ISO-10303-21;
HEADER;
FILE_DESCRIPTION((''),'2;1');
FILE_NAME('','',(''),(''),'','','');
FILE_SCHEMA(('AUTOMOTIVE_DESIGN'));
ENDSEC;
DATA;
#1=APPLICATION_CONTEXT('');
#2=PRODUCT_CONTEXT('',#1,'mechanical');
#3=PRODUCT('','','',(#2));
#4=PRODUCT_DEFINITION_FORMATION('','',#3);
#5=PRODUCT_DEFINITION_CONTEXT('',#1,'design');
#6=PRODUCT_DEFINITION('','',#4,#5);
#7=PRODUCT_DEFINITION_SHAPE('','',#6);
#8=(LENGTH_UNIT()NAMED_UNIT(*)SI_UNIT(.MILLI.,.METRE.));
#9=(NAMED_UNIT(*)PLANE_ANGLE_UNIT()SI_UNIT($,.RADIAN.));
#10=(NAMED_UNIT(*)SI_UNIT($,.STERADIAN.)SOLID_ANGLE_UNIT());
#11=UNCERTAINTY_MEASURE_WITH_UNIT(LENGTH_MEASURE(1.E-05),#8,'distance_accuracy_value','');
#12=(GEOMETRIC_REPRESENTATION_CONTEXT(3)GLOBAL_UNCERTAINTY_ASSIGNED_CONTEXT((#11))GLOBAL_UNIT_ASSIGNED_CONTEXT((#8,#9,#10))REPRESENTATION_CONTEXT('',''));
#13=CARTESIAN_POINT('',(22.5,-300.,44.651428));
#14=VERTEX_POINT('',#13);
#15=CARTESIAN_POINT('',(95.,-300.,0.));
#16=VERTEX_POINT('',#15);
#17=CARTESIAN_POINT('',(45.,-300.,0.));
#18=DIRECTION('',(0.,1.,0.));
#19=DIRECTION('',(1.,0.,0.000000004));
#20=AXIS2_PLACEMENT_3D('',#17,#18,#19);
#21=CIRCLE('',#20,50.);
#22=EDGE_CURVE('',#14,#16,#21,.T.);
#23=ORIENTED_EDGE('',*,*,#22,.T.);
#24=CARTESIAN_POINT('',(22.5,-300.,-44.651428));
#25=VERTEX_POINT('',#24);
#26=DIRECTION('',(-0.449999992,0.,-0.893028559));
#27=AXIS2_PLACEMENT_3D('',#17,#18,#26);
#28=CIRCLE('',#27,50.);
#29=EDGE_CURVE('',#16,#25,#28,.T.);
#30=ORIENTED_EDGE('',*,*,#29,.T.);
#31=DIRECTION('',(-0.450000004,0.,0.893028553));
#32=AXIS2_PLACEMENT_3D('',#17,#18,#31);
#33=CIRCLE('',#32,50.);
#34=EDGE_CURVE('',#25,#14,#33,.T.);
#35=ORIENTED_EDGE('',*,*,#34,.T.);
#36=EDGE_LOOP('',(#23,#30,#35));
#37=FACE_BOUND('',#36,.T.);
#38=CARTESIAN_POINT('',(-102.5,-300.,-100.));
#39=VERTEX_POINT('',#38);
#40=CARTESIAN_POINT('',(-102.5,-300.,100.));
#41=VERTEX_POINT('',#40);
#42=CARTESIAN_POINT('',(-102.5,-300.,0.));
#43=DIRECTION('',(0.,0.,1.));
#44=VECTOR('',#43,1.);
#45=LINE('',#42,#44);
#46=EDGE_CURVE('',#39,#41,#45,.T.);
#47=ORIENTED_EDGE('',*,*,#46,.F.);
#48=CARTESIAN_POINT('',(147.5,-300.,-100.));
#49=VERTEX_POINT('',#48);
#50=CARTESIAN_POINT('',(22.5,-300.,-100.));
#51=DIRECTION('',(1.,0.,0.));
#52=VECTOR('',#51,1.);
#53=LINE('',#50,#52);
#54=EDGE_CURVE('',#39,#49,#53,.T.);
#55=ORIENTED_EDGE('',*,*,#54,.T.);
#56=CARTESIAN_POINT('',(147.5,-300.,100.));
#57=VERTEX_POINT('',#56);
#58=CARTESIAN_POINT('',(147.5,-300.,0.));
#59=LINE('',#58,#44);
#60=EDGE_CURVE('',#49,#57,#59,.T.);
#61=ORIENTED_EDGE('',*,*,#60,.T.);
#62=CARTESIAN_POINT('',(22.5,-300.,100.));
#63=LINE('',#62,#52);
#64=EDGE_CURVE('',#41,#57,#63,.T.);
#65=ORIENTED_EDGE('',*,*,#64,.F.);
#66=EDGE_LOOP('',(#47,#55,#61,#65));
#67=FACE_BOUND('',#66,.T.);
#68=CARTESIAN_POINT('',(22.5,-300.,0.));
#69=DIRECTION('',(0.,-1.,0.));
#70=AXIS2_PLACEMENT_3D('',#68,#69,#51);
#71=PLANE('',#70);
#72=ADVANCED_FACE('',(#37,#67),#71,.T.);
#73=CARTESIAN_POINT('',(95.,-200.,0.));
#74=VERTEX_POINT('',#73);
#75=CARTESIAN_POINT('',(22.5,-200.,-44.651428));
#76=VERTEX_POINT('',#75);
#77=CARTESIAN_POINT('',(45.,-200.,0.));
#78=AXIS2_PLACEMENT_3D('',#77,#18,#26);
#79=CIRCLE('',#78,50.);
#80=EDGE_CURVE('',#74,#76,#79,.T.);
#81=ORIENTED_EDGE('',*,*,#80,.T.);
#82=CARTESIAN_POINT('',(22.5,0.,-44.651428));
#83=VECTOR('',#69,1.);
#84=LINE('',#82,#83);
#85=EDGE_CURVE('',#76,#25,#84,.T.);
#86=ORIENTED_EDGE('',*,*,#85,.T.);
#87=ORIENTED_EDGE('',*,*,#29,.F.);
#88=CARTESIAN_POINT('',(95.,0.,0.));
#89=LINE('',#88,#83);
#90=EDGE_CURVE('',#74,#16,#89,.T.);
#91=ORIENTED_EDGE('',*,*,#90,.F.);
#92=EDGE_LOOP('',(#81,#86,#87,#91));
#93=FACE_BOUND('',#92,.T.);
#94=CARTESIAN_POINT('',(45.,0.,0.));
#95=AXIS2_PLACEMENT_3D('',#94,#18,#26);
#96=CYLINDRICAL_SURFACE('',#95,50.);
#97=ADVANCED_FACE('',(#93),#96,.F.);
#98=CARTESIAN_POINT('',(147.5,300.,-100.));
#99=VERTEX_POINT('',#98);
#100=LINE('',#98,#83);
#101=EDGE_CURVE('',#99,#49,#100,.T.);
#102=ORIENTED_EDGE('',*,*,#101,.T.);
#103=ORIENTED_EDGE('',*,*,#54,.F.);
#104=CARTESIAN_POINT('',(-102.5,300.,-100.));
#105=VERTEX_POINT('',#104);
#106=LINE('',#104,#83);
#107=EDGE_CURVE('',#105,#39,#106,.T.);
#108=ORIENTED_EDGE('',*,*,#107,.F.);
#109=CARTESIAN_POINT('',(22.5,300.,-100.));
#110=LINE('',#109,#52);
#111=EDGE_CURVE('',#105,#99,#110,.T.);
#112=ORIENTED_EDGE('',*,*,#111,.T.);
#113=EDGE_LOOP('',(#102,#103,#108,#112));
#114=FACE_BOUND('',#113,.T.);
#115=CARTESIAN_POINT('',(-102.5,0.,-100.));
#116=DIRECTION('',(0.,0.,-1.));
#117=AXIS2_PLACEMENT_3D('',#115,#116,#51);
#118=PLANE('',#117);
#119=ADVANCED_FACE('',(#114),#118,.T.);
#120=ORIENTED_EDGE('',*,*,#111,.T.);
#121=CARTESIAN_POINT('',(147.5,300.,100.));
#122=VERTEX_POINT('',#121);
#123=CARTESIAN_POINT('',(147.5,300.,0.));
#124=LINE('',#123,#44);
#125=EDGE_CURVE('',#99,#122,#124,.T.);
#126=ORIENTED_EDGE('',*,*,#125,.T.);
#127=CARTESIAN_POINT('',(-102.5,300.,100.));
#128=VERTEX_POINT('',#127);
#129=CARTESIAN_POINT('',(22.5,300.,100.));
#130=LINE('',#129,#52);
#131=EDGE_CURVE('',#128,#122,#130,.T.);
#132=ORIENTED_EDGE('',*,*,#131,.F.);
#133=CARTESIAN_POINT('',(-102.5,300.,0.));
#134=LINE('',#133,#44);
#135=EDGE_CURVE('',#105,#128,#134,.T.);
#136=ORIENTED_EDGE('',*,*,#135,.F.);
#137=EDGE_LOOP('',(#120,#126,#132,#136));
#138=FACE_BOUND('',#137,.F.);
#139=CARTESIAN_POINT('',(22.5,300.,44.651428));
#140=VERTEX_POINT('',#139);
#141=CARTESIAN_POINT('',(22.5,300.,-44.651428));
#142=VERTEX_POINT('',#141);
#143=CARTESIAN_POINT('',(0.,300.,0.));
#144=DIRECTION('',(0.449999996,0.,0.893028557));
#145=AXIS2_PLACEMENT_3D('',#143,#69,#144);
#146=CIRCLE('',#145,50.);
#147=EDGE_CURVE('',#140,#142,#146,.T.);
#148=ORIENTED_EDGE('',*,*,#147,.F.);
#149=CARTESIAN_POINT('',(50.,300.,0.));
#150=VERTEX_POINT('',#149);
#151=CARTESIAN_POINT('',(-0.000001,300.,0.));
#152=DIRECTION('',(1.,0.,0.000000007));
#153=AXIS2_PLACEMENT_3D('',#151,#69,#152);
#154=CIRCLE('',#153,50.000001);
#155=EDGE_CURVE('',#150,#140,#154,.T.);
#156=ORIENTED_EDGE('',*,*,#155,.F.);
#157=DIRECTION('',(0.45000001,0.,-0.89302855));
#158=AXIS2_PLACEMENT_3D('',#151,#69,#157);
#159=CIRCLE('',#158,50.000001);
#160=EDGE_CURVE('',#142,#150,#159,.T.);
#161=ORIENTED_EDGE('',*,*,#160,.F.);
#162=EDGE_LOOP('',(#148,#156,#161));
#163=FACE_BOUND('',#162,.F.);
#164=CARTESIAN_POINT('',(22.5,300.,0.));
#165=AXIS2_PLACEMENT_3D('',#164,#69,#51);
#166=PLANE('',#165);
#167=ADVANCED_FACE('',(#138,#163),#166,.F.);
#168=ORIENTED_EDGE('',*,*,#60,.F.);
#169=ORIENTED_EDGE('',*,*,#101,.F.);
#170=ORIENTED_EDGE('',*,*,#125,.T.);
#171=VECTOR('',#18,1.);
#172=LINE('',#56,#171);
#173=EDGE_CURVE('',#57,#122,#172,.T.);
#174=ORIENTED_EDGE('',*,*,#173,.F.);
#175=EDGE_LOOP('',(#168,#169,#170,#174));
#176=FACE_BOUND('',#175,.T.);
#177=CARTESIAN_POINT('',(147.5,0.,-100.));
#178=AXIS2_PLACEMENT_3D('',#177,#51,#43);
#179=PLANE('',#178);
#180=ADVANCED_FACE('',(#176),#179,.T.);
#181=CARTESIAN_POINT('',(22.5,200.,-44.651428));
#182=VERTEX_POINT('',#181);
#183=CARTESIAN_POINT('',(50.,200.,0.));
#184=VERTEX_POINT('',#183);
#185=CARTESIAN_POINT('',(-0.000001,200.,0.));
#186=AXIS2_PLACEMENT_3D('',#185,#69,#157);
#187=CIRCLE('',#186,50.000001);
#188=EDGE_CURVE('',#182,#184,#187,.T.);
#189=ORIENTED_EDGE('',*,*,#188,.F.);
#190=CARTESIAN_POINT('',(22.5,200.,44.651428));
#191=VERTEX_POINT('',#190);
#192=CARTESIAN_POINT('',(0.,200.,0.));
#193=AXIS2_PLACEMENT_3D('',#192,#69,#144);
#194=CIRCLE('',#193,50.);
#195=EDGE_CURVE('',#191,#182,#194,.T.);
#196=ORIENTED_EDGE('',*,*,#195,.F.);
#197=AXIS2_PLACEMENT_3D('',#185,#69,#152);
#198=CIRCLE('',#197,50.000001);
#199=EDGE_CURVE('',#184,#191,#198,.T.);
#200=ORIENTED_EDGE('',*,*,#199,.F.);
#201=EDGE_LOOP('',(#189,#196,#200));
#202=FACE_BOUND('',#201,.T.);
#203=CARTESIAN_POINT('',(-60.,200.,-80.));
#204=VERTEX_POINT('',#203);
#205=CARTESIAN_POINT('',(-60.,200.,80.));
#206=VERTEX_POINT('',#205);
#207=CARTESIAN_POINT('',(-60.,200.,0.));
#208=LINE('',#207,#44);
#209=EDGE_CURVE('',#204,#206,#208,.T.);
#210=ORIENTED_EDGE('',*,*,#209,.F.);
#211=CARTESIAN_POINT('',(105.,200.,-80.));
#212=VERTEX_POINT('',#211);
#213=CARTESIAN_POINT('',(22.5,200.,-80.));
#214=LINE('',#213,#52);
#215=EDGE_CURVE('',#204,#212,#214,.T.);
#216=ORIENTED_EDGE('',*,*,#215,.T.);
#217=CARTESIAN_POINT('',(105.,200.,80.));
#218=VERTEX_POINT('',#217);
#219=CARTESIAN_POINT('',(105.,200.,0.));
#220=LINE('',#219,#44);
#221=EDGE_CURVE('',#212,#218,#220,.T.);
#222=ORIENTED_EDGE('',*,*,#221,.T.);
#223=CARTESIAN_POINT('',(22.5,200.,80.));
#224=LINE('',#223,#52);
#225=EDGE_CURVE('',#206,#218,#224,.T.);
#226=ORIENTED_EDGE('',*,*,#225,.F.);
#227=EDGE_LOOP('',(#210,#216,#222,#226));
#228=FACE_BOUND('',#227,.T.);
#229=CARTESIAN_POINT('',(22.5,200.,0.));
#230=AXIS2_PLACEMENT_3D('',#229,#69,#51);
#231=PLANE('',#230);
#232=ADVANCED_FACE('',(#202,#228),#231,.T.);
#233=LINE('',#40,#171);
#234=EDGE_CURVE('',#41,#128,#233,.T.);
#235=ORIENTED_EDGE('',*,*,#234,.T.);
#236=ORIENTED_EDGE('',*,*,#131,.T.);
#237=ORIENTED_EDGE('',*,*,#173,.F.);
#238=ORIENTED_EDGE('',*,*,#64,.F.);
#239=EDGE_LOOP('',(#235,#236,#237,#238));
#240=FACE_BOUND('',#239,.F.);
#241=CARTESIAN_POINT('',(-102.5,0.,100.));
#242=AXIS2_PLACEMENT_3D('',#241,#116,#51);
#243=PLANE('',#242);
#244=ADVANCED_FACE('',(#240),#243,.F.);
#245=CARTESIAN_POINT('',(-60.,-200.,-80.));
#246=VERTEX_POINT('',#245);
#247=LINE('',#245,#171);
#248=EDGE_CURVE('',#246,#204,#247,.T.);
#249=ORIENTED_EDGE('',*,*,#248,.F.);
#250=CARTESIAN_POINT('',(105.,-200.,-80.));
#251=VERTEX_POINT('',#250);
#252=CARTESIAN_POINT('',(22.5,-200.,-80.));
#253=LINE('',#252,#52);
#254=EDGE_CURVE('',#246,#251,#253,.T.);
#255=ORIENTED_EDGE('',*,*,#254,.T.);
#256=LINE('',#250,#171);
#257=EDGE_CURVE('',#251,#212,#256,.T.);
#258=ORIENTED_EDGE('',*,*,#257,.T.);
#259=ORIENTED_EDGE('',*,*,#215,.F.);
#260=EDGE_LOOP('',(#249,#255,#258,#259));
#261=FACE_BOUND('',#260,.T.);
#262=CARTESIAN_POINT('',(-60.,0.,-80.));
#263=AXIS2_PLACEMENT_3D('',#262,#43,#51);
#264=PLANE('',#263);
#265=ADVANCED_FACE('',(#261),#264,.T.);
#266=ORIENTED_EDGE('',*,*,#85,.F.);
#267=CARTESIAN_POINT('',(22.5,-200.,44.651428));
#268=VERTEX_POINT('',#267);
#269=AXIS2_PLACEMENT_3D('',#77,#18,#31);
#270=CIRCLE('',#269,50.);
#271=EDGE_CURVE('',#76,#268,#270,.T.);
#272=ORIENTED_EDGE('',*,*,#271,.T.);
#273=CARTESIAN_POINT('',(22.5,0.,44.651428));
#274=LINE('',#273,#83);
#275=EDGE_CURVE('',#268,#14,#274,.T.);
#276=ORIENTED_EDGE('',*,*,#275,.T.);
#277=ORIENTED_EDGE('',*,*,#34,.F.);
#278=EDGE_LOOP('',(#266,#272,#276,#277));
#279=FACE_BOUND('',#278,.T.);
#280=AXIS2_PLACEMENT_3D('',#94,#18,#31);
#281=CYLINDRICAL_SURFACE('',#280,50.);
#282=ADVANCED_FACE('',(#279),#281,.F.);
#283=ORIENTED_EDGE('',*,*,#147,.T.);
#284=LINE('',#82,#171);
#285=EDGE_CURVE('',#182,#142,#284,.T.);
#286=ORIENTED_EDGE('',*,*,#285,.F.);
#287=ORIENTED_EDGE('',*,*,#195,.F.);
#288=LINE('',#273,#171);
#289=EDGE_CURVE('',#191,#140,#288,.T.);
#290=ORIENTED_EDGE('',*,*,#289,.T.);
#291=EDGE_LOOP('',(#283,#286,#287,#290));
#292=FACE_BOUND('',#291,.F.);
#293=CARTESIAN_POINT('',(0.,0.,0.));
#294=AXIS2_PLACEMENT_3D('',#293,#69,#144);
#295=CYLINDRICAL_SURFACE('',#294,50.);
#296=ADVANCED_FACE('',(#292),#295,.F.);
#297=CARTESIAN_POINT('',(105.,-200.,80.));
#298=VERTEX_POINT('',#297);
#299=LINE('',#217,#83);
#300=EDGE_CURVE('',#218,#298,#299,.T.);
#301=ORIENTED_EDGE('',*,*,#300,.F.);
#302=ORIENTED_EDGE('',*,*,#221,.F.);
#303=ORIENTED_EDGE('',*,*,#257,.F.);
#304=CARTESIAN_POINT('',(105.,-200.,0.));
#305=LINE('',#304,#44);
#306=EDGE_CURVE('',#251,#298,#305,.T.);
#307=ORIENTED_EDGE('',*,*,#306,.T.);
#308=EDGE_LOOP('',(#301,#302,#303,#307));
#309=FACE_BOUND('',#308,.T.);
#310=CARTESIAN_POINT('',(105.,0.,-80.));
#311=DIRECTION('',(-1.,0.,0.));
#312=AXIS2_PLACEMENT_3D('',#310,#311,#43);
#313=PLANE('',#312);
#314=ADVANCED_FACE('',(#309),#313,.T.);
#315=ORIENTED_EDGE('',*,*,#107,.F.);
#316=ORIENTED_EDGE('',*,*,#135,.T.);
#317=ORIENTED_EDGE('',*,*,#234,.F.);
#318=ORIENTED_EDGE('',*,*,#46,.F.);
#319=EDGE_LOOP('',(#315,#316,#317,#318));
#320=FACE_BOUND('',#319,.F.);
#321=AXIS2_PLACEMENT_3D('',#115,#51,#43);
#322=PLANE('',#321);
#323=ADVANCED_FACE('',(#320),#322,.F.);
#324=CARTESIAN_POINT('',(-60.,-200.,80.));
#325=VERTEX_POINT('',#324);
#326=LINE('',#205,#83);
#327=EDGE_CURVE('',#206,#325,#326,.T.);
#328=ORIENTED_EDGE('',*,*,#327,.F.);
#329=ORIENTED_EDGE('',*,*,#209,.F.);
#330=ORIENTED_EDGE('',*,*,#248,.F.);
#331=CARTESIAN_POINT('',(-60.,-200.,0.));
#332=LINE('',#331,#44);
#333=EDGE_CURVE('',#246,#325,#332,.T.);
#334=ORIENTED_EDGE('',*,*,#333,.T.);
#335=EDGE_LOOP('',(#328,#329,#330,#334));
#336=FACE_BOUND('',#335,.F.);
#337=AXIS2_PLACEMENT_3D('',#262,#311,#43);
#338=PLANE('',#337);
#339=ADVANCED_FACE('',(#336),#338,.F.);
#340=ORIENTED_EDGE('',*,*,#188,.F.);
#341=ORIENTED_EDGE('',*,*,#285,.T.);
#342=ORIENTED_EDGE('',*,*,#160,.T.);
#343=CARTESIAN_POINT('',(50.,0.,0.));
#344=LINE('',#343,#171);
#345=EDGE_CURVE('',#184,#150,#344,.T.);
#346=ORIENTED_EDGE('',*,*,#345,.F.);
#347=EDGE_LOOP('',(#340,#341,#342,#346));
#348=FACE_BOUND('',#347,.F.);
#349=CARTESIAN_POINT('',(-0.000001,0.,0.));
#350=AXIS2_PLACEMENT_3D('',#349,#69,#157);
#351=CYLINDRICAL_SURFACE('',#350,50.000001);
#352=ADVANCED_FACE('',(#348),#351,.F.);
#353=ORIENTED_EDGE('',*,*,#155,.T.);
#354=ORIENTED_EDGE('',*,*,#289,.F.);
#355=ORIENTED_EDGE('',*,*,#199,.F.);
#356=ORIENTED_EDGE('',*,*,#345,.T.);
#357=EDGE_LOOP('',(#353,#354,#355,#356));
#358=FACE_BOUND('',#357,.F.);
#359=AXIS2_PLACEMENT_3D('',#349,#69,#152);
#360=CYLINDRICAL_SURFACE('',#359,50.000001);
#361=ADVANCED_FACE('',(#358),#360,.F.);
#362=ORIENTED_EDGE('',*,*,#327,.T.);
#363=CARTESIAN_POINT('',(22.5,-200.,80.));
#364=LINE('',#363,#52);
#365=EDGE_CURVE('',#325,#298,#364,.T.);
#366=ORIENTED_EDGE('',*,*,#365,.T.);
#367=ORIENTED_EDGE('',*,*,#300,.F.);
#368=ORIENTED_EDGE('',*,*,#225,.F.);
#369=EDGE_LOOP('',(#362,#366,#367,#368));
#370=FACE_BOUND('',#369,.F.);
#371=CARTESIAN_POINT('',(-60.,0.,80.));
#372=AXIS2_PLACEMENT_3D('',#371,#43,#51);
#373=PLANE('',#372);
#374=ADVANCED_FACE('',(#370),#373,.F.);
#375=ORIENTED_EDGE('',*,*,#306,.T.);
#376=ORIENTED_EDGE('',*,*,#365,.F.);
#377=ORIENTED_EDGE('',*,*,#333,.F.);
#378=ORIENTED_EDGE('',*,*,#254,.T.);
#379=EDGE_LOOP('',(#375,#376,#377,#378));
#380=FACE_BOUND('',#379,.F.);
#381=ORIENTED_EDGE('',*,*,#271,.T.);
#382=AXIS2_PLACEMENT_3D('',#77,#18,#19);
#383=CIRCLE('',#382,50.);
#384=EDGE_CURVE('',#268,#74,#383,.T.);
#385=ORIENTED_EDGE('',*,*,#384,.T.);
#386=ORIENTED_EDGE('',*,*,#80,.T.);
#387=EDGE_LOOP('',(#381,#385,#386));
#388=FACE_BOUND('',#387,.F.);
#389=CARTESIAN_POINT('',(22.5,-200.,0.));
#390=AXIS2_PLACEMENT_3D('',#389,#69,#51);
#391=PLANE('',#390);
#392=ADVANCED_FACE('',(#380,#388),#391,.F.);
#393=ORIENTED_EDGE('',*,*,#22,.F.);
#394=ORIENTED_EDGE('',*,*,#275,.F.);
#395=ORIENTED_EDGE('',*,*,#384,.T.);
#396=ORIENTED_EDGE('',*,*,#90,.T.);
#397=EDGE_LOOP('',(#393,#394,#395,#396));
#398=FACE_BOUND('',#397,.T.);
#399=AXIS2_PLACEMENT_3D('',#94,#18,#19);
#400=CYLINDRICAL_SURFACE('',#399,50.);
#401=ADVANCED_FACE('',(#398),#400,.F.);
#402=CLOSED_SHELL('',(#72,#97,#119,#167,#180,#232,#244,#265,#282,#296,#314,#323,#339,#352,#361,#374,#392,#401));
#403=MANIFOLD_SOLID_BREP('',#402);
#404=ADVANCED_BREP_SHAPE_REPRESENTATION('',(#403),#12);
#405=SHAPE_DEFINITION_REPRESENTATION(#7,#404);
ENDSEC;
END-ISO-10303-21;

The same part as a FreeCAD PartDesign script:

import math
import FreeCAD as App
import Part
import Sketcher
from FreeCAD import Vector
Q = App.Units.Quantity


def add_polygon(sketch, points):
    """Adds a closed chain of lines whose ends are joined by coincident constraints."""
    first, n = sketch.GeometryCount, len(points)
    for a, b in zip(points, points[1:] + points[:1]):
        sketch.addGeometry(Part.LineSegment(App.Vector(*a, 0), App.Vector(*b, 0)), False)
    for i in range(n):
        sketch.addConstraint(Sketcher.Constraint("Coincident", first + i, 2, first + (i + 1) % n, 1))

doc = App.newDocument("Part")
body = doc.addObject("PartDesign::Body", "Body")

# Sketch on XZ plane
sketch1 = body.newObject("Sketcher::SketchObject", "Sketch")
sketch1.AttachmentSupport = (doc.getObject("XZ_Plane"), [""])
sketch1.MapMode = "FlatFace"
add_polygon(sketch1, [(-102, 100), (-102, -100), (148, -100), (148, 100)])  # lines 0-3
sketch1.addConstraint(Sketcher.Constraint("Vertical", 0))
sketch1.addConstraint(Sketcher.Constraint("Horizontal", 1))
sketch1.addConstraint(Sketcher.Constraint("Vertical", 2))
sketch1.addConstraint(Sketcher.Constraint("Horizontal", 3))
sketch1.addConstraint(Sketcher.Constraint("DistanceX", 1, 1, 1, 2, Q("250 mm")))
sketch1.addConstraint(Sketcher.Constraint("DistanceY", 0, 2, 0, 1, Q("200 mm")))
sketch1.addConstraint(Sketcher.Constraint("DistanceY", 0, 2, -1, 1, Q("100 mm")))
sketch1.addConstraint(Sketcher.Constraint("DistanceX", 0, 2, -1, 1, Q("102.5 mm")))
pad1 = body.newObject("PartDesign::Pad", "Pad")
pad1.Profile = sketch1
pad1.Type = "TwoLengths"
pad1.Length = 300
pad1.Length2 = 300

# Sketch on XZ plane
sketch2 = body.newObject("Sketcher::SketchObject", "Sketch001")
sketch2.AttachmentSupport = (doc.getObject("XZ_Plane"), [""])
sketch2.MapMode = "FlatFace"
add_polygon(sketch2, [(-60, 80), (-60, -80), (105, -80), (105, 80)])  # lines 0-3
sketch2.addConstraint(Sketcher.Constraint("Vertical", 0))
sketch2.addConstraint(Sketcher.Constraint("Horizontal", 1))
sketch2.addConstraint(Sketcher.Constraint("Vertical", 2))
sketch2.addConstraint(Sketcher.Constraint("Horizontal", 3))
sketch2.addConstraint(Sketcher.Constraint("DistanceX", 1, 1, 1, 2, Q("165 mm")))
sketch2.addConstraint(Sketcher.Constraint("DistanceY", 0, 2, 0, 1, Q("160 mm")))
sketch2.addConstraint(Sketcher.Constraint("DistanceX", 0, 2, -1, 1, Q("60 mm")))
sketch2.addConstraint(Sketcher.Constraint("DistanceY", 0, 2, -1, 1, Q("80 mm")))
pocket1 = body.newObject("PartDesign::Pocket", "Pocket")
pocket1.Profile = sketch2
pocket1.Type = "TwoLengths"
pocket1.Length = 200
pocket1.Length2 = 200
pocket1.Reversed = True

# Sketch on XZ plane
sketch3 = body.newObject("Sketcher::SketchObject", "Sketch002")
sketch3.AttachmentSupport = (doc.getObject("XZ_Plane"), [""])
sketch3.MapMode = "FlatFace"
sketch3.addGeometry(Part.ArcOfCircle(Part.Circle(Vector(45, 0, 0), Vector(0, 0, 1), 50), math.radians(117), math.radians(243)), False)
sketch3.addGeometry(Part.ArcOfCircle(Part.Circle(Vector(45, 0, 0), Vector(0, 0, 1), 50), math.radians(-117), math.radians(0)), False)
sketch3.addGeometry(Part.ArcOfCircle(Part.Circle(Vector(45, 0, 0), Vector(0, 0, 1), 50), math.radians(0), math.radians(117)), False)
sketch3.addConstraint(Sketcher.Constraint("Tangent", 0, 2, 1, 1))
sketch3.addConstraint(Sketcher.Constraint("Tangent", 1, 2, 2, 1))
sketch3.addConstraint(Sketcher.Constraint("Tangent", 2, 2, 0, 1))
sketch3.addConstraint(Sketcher.Constraint("Symmetric", 0, 2, 2, 2, -1))
sketch3.addConstraint(Sketcher.Constraint("PointOnObject", 1, 2, -1))
sketch3.addConstraint(Sketcher.Constraint("Radius", 0, Q("50 mm")))
sketch3.addConstraint(Sketcher.Constraint("DistanceX", -1, 1, 0, 3, Q("45 mm")))
sketch3.addConstraint(Sketcher.Constraint("DistanceX", -1, 1, 0, 2, Q("22.5 mm")))
pocket2 = body.newObject("PartDesign::Pocket", "Pocket001")
pocket2.Profile = sketch3
pocket2.Type = "ThroughAll"
pocket2.Reversed = True

# Sketch on XZ plane
sketch4 = body.newObject("Sketcher::SketchObject", "Sketch003")
sketch4.AttachmentSupport = (doc.getObject("XZ_Plane"), [""])
sketch4.MapMode = "FlatFace"
sketch4.addGeometry(Part.ArcOfCircle(Part.Circle(Vector(0, 0, 0), Vector(0, 0, 1), 50), math.radians(63), math.radians(297)), False)
sketch4.addGeometry(Part.ArcOfCircle(Part.Circle(Vector(0, 0, 0), Vector(0, 0, 1), 50), math.radians(-63), math.radians(0)), False)
sketch4.addGeometry(Part.ArcOfCircle(Part.Circle(Vector(0, 0, 0), Vector(0, 0, 1), 50), math.radians(0), math.radians(63)), False)
sketch4.addConstraint(Sketcher.Constraint("Tangent", 0, 2, 1, 1))
sketch4.addConstraint(Sketcher.Constraint("Tangent", 1, 2, 2, 1))
sketch4.addConstraint(Sketcher.Constraint("Tangent", 2, 2, 0, 1))
sketch4.addConstraint(Sketcher.Constraint("Coincident", 0, 3, -1, 1))
sketch4.addConstraint(Sketcher.Constraint("PointOnObject", 1, 2, -1))
sketch4.addConstraint(Sketcher.Constraint("Vertical", 0, 2, 2, 2))
sketch4.addConstraint(Sketcher.Constraint("Radius", 0, Q("50 mm")))
sketch4.addConstraint(Sketcher.Constraint("DistanceX", -1, 1, 0, 2, Q("22.5 mm")))
pocket3 = body.newObject("PartDesign::Pocket", "Pocket002")
pocket3.Profile = sketch4
pocket3.Type = "ThroughAll"

doc.recompute()
